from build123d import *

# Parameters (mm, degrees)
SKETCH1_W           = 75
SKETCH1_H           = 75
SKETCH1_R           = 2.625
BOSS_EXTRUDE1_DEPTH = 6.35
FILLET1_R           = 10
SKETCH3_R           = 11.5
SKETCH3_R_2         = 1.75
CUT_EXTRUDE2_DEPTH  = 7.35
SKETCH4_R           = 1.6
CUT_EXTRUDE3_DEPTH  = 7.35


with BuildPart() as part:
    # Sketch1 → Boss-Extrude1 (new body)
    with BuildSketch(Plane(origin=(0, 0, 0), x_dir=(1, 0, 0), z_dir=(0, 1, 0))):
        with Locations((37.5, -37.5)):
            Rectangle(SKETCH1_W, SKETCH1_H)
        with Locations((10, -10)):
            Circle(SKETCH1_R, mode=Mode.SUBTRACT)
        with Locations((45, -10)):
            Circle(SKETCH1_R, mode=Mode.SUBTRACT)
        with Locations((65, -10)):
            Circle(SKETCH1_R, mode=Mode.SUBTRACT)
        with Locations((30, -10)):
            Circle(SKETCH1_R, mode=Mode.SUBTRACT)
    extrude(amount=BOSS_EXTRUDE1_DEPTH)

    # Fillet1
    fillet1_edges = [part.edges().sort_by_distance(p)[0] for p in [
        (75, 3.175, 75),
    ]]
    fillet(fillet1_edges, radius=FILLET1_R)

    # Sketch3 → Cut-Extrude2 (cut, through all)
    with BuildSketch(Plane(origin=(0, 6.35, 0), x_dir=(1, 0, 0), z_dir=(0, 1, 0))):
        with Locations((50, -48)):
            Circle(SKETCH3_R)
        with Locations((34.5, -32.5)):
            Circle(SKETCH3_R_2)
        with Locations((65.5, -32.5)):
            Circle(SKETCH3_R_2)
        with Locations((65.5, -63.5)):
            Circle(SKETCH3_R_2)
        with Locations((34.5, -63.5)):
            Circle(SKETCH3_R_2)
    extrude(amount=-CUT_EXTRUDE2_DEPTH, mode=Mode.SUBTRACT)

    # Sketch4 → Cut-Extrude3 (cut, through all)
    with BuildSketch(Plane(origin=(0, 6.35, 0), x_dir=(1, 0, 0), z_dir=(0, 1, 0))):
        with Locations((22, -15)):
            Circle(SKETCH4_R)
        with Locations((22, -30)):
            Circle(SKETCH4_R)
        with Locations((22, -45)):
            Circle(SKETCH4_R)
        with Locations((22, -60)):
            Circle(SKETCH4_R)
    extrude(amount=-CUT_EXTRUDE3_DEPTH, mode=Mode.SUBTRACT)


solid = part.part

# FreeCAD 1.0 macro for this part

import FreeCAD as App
import Part
import Sketcher


def edges_at(feature, points):
    """Names of the edges that pass closest to the given points."""
    edges = feature.Shape.Edges
    near = lambda p: min(range(len(edges)), key=lambda i: edges[i].distToShape(Part.Vertex(*p))[0])
    return sorted({f"Edge{near(p) + 1}" for p in points})

doc = App.newDocument("Part")
body = doc.addObject("PartDesign::Body", "Body")

# Sketch on XZ plane
sketch1 = body.newObject("Sketcher::SketchObject", "Sketch")
sketch1.AttachmentSupport = (doc.getObject("XZ_Plane"), [""])
sketch1.MapMode = "FlatFace"
sketch1.addGeometry([
    Part.LineSegment(App.Vector(0, 0, 0), App.Vector(0, 75, 0)),  # 0
    Part.LineSegment(App.Vector(0, 75, 0), App.Vector(75, 75, 0)),  # 1
    Part.LineSegment(App.Vector(75, 75, 0), App.Vector(75, 0, 0)),  # 2
    Part.LineSegment(App.Vector(75, 0, 0), App.Vector(0, 0, 0)),  # 3
    Part.Circle(App.Vector(10, 10, 0), App.Vector(0, 0, 1), 2.6),  # 4
    Part.Circle(App.Vector(30, 10, 0), App.Vector(0, 0, 1), 2.6),  # 5
    Part.Circle(App.Vector(45, 10, 0), App.Vector(0, 0, 1), 2.6),  # 6
    Part.Circle(App.Vector(65, 10, 0), App.Vector(0, 0, 1), 2.6),  # 7
], False)
sketch1.addConstraint([
    Sketcher.Constraint("Coincident", 0, 2, 1, 1),
    Sketcher.Constraint("Coincident", 1, 2, 2, 1),
    Sketcher.Constraint("Coincident", 2, 2, 3, 1),
    Sketcher.Constraint("Coincident", 3, 2, 0, 1),
    Sketcher.Constraint("Vertical", 0),
    Sketcher.Constraint("Horizontal", 1),
    Sketcher.Constraint("Vertical", 2),
    Sketcher.Constraint("Horizontal", 3),
    Sketcher.Constraint("Coincident", 3, 2, -1, 1),
    Sketcher.Constraint("Equal", 4, 5),
    Sketcher.Constraint("Equal", 5, 6),
    Sketcher.Constraint("Equal", 6, 7),
    Sketcher.Constraint("Horizontal", 4, 3, 5, 3),
    Sketcher.Constraint("Horizontal", 5, 3, 6, 3),
    Sketcher.Constraint("Horizontal", 6, 3, 7, 3),
    Sketcher.Constraint("Equal", 3, 0),
    Sketcher.Constraint("Diameter", 4, 5.25),
    Sketcher.Constraint("DistanceX", 1, 1, 1, 2, 75.0),
    Sketcher.Constraint("DistanceX", -1, 1, 4, 3, 10.0),
    Sketcher.Constraint("DistanceY", -1, 1, 4, 3, 10.0),
    Sketcher.Constraint("DistanceX", -1, 1, 5, 3, 30.0),
    Sketcher.Constraint("DistanceX", -1, 1, 6, 3, 45.0),
    Sketcher.Constraint("DistanceX", -1, 1, 7, 3, 65.0),
])
pad1 = body.newObject("PartDesign::Pad", "Pad")
pad1.Profile = sketch1
pad1.Length = 6.35
pad1.Reversed = True
doc.recompute()

fillet = body.newObject("PartDesign::Fillet", "Fillet")
fillet.Base = (pad1, edges_at(pad1, [(75, 3.175, 75)]))
fillet.Radius = 10

# Sketch on XZ plane
sketch2 = body.newObject("Sketcher::SketchObject", "Sketch001")
sketch2.AttachmentSupport = (doc.getObject("XZ_Plane"), [""])
sketch2.MapMode = "FlatFace"
sketch2.AttachmentOffset = App.Placement(App.Vector(0, 0, -6.35), App.Rotation())
sketch2.addGeometry([
    Part.Circle(App.Vector(50, 48, 0), App.Vector(0, 0, 1), 11.5),  # 0
    Part.Circle(App.Vector(34.5, 32.5, 0), App.Vector(0, 0, 1), 1.8),  # 1
    Part.Circle(App.Vector(65.5, 32.5, 0), App.Vector(0, 0, 1), 1.8),  # 2
    Part.Circle(App.Vector(65.5, 63.5, 0), App.Vector(0, 0, 1), 1.8),  # 3
    Part.Circle(App.Vector(34.5, 63.5, 0), App.Vector(0, 0, 1), 1.8),  # 4
], False)
sketch2.addConstraint([
    Sketcher.Constraint("Equal", 1, 2),
    Sketcher.Constraint("Equal", 2, 3),
    Sketcher.Constraint("Equal", 3, 4),
    Sketcher.Constraint("Horizontal", 1, 3, 2, 3),
    Sketcher.Constraint("Horizontal", 3, 3, 4, 3),
    Sketcher.Constraint("Vertical", 2, 3, 3, 3),
    Sketcher.Constraint("Vertical", 1, 3, 4, 3),
    Sketcher.Constraint("Diameter", 0, 23.0),
    Sketcher.Constraint("Diameter", 1, 3.5),
    Sketcher.Constraint("DistanceX", -1, 1, 0, 3, 50.0),
    Sketcher.Constraint("DistanceY", -1, 1, 0, 3, 48.0),
    Sketcher.Constraint("DistanceX", 1, 3, 2, 3, 31.0),
    Sketcher.Constraint("DistanceY", 2, 3, 3, 3, 31.0),
    Sketcher.Constraint("DistanceX", -1, 1, 1, 3, 34.5),
    Sketcher.Constraint("DistanceY", -1, 1, 1, 3, 32.5),
])
pocket1 = body.newObject("PartDesign::Pocket", "Pocket")
pocket1.Profile = sketch2
pocket1.Type = "ThroughAll"
pocket1.Reversed = True

# Sketch on XZ plane
sketch3 = body.newObject("Sketcher::SketchObject", "Sketch002")
sketch3.AttachmentSupport = (doc.getObject("XZ_Plane"), [""])
sketch3.MapMode = "FlatFace"
sketch3.AttachmentOffset = App.Placement(App.Vector(0, 0, -6.35), App.Rotation())
sketch3.addGeometry([
    Part.Circle(App.Vector(22, 15, 0), App.Vector(0, 0, 1), 1.6),
    Part.Circle(App.Vector(22, 30, 0), App.Vector(0, 0, 1), 1.6),
    Part.Circle(App.Vector(22, 45, 0), App.Vector(0, 0, 1), 1.6),
    Part.Circle(App.Vector(22, 60, 0), App.Vector(0, 0, 1), 1.6),
], False)
sketch3.addConstraint([
    Sketcher.Constraint("Equal", 0, 1),
    Sketcher.Constraint("Equal", 1, 2),
    Sketcher.Constraint("Equal", 2, 3),
    Sketcher.Constraint("Vertical", 0, 3, 1, 3),
    Sketcher.Constraint("Vertical", 1, 3, 2, 3),
    Sketcher.Constraint("Vertical", 2, 3, 3, 3),
    Sketcher.Constraint("Diameter", 0, 3.2),
    Sketcher.Constraint("DistanceX", -1, 1, 0, 3, 22.0),
    Sketcher.Constraint("DistanceY", -1, 1, 0, 3, 15.0),
    Sketcher.Constraint("DistanceY", -1, 1, 1, 3, 30.0),
    Sketcher.Constraint("DistanceY", -1, 1, 2, 3, 45.0),
    Sketcher.Constraint("DistanceY", -1, 1, 3, 3, 60.0),
])
pocket2 = body.newObject("PartDesign::Pocket", "Pocket001")
pocket2.Profile = sketch3
pocket2.Type = "ThroughAll"
pocket2.Reversed = True

doc.recompute()
